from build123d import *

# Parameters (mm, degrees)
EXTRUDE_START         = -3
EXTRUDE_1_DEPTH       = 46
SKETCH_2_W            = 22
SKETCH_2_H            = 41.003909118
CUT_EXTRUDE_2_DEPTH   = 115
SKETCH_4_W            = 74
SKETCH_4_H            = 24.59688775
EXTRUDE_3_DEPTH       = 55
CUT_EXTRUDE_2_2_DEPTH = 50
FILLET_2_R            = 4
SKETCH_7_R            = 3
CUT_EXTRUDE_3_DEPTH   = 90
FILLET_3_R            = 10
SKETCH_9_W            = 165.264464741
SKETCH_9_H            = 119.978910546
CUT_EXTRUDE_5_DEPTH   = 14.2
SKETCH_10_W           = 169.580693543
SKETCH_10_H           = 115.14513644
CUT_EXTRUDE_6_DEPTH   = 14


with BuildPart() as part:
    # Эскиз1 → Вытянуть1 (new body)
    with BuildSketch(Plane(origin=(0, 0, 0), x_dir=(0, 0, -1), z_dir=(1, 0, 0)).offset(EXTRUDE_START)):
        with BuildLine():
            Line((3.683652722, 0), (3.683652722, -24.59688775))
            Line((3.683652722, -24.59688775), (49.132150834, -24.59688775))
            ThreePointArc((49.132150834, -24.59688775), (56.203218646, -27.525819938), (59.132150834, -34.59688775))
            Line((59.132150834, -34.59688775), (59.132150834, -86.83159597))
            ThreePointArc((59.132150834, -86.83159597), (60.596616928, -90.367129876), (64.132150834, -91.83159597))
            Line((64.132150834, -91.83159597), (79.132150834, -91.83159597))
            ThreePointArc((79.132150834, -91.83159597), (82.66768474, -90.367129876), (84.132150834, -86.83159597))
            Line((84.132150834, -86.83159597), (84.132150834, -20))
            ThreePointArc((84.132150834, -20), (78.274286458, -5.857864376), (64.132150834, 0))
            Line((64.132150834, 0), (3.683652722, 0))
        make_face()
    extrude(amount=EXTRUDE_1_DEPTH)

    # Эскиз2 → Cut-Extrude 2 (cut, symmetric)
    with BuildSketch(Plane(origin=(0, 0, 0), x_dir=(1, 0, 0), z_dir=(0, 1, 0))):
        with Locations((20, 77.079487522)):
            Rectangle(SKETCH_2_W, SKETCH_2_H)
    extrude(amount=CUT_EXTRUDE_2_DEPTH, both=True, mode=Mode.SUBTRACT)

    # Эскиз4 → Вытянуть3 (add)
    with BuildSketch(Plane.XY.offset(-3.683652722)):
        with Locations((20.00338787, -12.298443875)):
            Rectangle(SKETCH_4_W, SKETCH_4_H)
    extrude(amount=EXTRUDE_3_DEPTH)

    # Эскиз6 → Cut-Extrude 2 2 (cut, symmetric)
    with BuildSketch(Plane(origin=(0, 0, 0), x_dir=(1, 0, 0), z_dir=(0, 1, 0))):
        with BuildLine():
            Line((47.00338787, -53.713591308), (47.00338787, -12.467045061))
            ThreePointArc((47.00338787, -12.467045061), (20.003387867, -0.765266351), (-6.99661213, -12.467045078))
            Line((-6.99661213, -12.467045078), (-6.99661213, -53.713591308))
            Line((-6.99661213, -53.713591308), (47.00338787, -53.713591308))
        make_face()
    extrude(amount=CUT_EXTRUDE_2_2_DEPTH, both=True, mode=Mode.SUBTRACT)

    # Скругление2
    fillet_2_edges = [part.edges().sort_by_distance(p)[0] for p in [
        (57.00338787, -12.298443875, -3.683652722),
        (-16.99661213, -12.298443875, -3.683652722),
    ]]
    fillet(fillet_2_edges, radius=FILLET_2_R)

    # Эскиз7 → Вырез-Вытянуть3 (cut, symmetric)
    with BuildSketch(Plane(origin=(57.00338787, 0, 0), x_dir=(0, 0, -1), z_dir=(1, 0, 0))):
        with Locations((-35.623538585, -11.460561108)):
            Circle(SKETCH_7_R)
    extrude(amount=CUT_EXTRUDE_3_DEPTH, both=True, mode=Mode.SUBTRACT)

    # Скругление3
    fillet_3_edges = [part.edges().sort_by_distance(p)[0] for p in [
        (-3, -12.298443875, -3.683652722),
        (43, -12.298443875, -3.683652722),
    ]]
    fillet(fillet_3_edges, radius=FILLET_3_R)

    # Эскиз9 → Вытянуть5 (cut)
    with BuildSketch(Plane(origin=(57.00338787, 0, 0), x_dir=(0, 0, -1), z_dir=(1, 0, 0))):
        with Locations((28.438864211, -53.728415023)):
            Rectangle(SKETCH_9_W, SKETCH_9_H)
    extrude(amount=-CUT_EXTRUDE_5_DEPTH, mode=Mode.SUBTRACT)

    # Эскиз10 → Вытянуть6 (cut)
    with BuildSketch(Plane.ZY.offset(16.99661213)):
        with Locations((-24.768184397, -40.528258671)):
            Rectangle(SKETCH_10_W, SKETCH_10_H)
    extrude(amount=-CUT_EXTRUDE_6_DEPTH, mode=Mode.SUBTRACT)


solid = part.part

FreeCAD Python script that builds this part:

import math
import FreeCAD as App
import Part
import Sketcher

V = App.Vector
Q = App.Units.Quantity


def edges_at(feature, points):
    """Names of the edges that pass closest to the given points."""
    edges = feature.Shape.Edges
    near = lambda p: min(range(len(edges)), key=lambda i: edges[i].distToShape(Part.Vertex(*p))[0])
    return sorted({f"Edge{near(p) + 1}" for p in points})


def add_polygon(sketch, points):
    """Adds a closed chain of lines whose ends are joined by coincident constraints."""
    first, n = sketch.GeometryCount, len(points)
    for a, b in zip(points, points[1:] + points[:1]):
        sketch.addGeometry(Part.LineSegment(App.Vector(*a, 0), App.Vector(*b, 0)), False)
    for i in range(n):
        sketch.addConstraint(Sketcher.Constraint("Coincident", first + i, 2, first + (i + 1) % n, 1))

doc = App.newDocument("Part")
body = doc.addObject("PartDesign::Body", "Body")

# Sketch on YZ plane
sketch1 = doc.addObject("Sketcher::SketchObject", "Sketch")
body.addObject(sketch1)
sketch1.AttachmentSupport = (doc.YZ_Plane, [""])
sketch1.MapMode = "FlatFace"
sketch1.AttachmentOffset = App.Placement(V(0, 0, -3), App.Rotation())
sketch1.addGeometry([
    Part.LineSegment(V(0, -4, 0), V(-25, -4, 0)),  # 0
    Part.LineSegment(V(-25, -4, 0), V(-25, -49, 0)),  # 1
    Part.ArcOfCircle(Part.Circle(V(-35, -49, 0), V(0, 0, 1), 10), math.radians(-90), math.radians(0)),  # 2
    Part.LineSegment(V(-35, -59, 0), V(-87, -59, 0)),  # 3
    Part.ArcOfCircle(Part.Circle(V(-87, -64, 0), V(0, 0, 1), 5), math.radians(90), math.radians(180)),  # 4
    Part.LineSegment(V(-92, -64, 0), V(-92, -79, 0)),  # 5
    Part.ArcOfCircle(Part.Circle(V(-87, -79, 0), V(0, 0, 1), 5), math.radians(180), math.radians(270)),  # 6
    Part.LineSegment(V(-87, -84, 0), V(-20, -84, 0)),  # 7
    Part.ArcOfCircle(Part.Circle(V(-20, -64, 0), V(0, 0, 1), 20), math.radians(-90), math.radians(0)),  # 8
    Part.LineSegment(V(0, -64, 0), V(0, -4, 0)),  # 9
], False)
sketch1.addConstraint([
    Sketcher.Constraint("Coincident", 0, 2, 1, 1),
    Sketcher.Constraint("Tangent", 1, 2, 2, 2),
    Sketcher.Constraint("Tangent", 2, 1, 3, 1),
    Sketcher.Constraint("Tangent", 3, 2, 4, 1),
    Sketcher.Constraint("Tangent", 4, 2, 5, 1),
    Sketcher.Constraint("Tangent", 5, 2, 6, 1),
    Sketcher.Constraint("Tangent", 6, 2, 7, 1),
    Sketcher.Constraint("Tangent", 7, 2, 8, 1),
    Sketcher.Constraint("Tangent", 8, 2, 9, 1),
    Sketcher.Constraint("Coincident", 9, 2, 0, 1),
    Sketcher.Constraint("Horizontal", 0),
    Sketcher.Constraint("Vertical", 1),
    Sketcher.Constraint("Horizontal", 3),
    Sketcher.Constraint("Vertical", 5),
    Sketcher.Constraint("Horizontal", 7),
    Sketcher.Constraint("Vertical", 9),
    Sketcher.Constraint("Equal", 4, 6),
    Sketcher.Constraint("PointOnObject", 8, 2, -2),
    Sketcher.Constraint("Horizontal", 4, 3, 8, 3),
    Sketcher.Constraint("Radius", 2, Q("10 mm")),
    Sketcher.Constraint("Radius", 4, Q("5 mm")),
    Sketcher.Constraint("Radius", 8, Q("20 mm")),
    Sketcher.Constraint("DistanceY", 1, 2, 1, 1, Q("45.448498 mm")),
    Sketcher.Constraint("DistanceX", 3, 2, 3, 1, Q("52.234708 mm")),
    Sketcher.Constraint("DistanceX", 0, 2, 0, 1, Q("24.596888 mm")),
    Sketcher.Constraint("DistanceY", 2, 3, -1, 1, Q("49.132151 mm")),
])
pad1 = doc.addObject("PartDesign::Pad", "Pad")
body.addObject(pad1)
pad1.Profile = sketch1
pad1.Length = 46

# Sketch on XZ plane
sketch2 = doc.addObject("Sketcher::SketchObject", "Sketch001")
body.addObject(sketch2)
sketch2.AttachmentSupport = (doc.XZ_Plane, [""])
sketch2.MapMode = "FlatFace"
add_polygon(sketch2, [(9, -98), (9, -57), (31, -57), (31, -98)])  # lines 0-3
sketch2.addConstraint([
    Sketcher.Constraint("Vertical", 0),
    Sketcher.Constraint("Horizontal", 1),
    Sketcher.Constraint("Vertical", 2),
    Sketcher.Constraint("Horizontal", 3),
    Sketcher.Constraint("DistanceX", 1, 1, 1, 2, Q("22 mm")),
    Sketcher.Constraint("DistanceX", -1, 1, 0, 2, Q("9 mm")),
    Sketcher.Constraint("DistanceY", 0, 1, 0, 2, Q("41.003909 mm")),
    Sketcher.Constraint("DistanceY", 0, 2, -1, 1, Q("56.577533 mm")),
])
pocket1 = doc.addObject("PartDesign::Pocket", "Pocket")
body.addObject(pocket1)
pocket1.Profile = sketch2
pocket1.Length = 230
pocket1.Midplane = True

# Sketch on XY plane
sketch3 = doc.addObject("Sketcher::SketchObject", "Sketch002")
body.addObject(sketch3)
sketch3.AttachmentSupport = (doc.XY_Plane, [""])
sketch3.MapMode = "FlatFace"
sketch3.AttachmentOffset = App.Placement(V(0, 0, -3.683653), App.Rotation())
add_polygon(sketch3, [(-17, 0), (-17, -25), (57, -25), (57, 0)])  # lines 0-3
sketch3.addConstraint([
    Sketcher.Constraint("Vertical", 0),
    Sketcher.Constraint("Horizontal", 1),
    Sketcher.Constraint("Vertical", 2),
    Sketcher.Constraint("Horizontal", 3),
    Sketcher.Constraint("PointOnObject", 2, 2, -1),
    Sketcher.Constraint("DistanceX", 1, 1, 1, 2, Q("74 mm")),
    Sketcher.Constraint("DistanceY", 0, 2, 0, 1, Q("24.596888 mm")),
    Sketcher.Constraint("DistanceX", 0, 2, -1, 1, Q("16.996612 mm")),
])
pad2 = doc.addObject("PartDesign::Pad", "Pad001")
body.addObject(pad2)
pad2.Profile = sketch3
pad2.Length = 55

# Sketch on XZ plane
sketch4 = doc.addObject("Sketcher::SketchObject", "Sketch003")
body.addObject(sketch4)
sketch4.AttachmentSupport = (doc.XZ_Plane, [""])
sketch4.MapMode = "FlatFace"
sketch4.addGeometry([
    Part.LineSegment(V(47, 54, 0), V(47, 12, 0)),
    Part.ArcOfCircle(Part.Circle(V(20, 38, 0), V(0, 0, 1), 37), math.radians(-137), math.radians(-43)),
    Part.LineSegment(V(-7, 12, 0), V(-7, 54, 0)),
    Part.LineSegment(V(-7, 54, 0), V(47, 54, 0)),
], False)
sketch4.addConstraint([
    Sketcher.Constraint("Coincident", 0, 2, 1, 2),
    Sketcher.Constraint("Coincident", 1, 1, 2, 1),
    Sketcher.Constraint("Coincident", 2, 2, 3, 1),
    Sketcher.Constraint("Coincident", 3, 2, 0, 1),
    Sketcher.Constraint("Vertical", 0),
    Sketcher.Constraint("Vertical", 2),
    Sketcher.Constraint("Horizontal", 3),
    Sketcher.Constraint("Horizontal", 0, 2, 1, 1),
    Sketcher.Constraint("Radius", 1, Q("37 mm")),
    Sketcher.Constraint("DistanceX", 3, 1, 3, 2, Q("54 mm")),
    Sketcher.Constraint("DistanceY", 0, 2, 0, 1, Q("41.246546 mm")),
    Sketcher.Constraint("DistanceY", -1, 1, 2, 2, Q("53.713591 mm")),
    Sketcher.Constraint("DistanceX", -1, 1, 1, 3, Q("20.003388 mm")),
])
pocket2 = doc.addObject("PartDesign::Pocket", "Pocket001")
body.addObject(pocket2)
pocket2.Profile = sketch4
pocket2.Length = 100
pocket2.Midplane = True
doc.recompute()

fillet = doc.addObject("PartDesign::Fillet", "Fillet")
body.addObject(fillet)
fillet.Base = (pocket2, edges_at(pocket2, [(57.003, -12.298, -3.684), (-16.997, -12.298, -3.684)]))
fillet.Radius = 4

# Sketch on YZ plane
sketch5 = doc.addObject("Sketcher::SketchObject", "Sketch004")
body.addObject(sketch5)
sketch5.AttachmentSupport = (doc.YZ_Plane, [""])
sketch5.MapMode = "FlatFace"
sketch5.AttachmentOffset = App.Placement(V(0, 0, 57.003388), App.Rotation())
sketch5.addGeometry(Part.Circle(V(-11.5, 35.6, 0), V(0, 0, 1), 3), False)
sketch5.addConstraint([
    Sketcher.Constraint("Diameter", 0, Q("6 mm")),
    Sketcher.Constraint("DistanceX", 0, 3, -1, 1, Q("11.460561 mm")),
    Sketcher.Constraint("DistanceY", -1, 1, 0, 3, Q("35.623539 mm")),
])
pocket3 = doc.addObject("PartDesign::Pocket", "Pocket002")
body.addObject(pocket3)
pocket3.Profile = sketch5
pocket3.Length = 180
pocket3.Midplane = True
doc.recompute()

fillet2 = doc.addObject("PartDesign::Fillet", "Fillet001")
body.addObject(fillet2)
fillet2.Base = (pocket3, edges_at(pocket3, [(-3, -12.298, -3.684), (43, -12.298, -3.684)]))
fillet2.Radius = 10

# Sketch on YZ plane
sketch6 = doc.addObject("Sketcher::SketchObject", "Sketch005")
body.addObject(sketch6)
sketch6.AttachmentSupport = (doc.YZ_Plane, [""])
sketch6.MapMode = "FlatFace"
sketch6.AttachmentOffset = App.Placement(V(0, 0, 57.003388), App.Rotation())
add_polygon(sketch6, [(6, 54), (-114, 54), (-114, -111), (6, -111)])  # lines 0-3
sketch6.addConstraint([
    Sketcher.Constraint("Horizontal", 0),
    Sketcher.Constraint("Vertical", 1),
    Sketcher.Constraint("Horizontal", 2),
    Sketcher.Constraint("Vertical", 3),
    Sketcher.Constraint("DistanceX", 0, 2, 0, 1, Q("119.978911 mm")),
    Sketcher.Constraint("DistanceY", 1, 2, 1, 1, Q("165.264465 mm")),
    Sketcher.Constraint("DistanceX", 0, 2, -1, 1, Q("113.71787 mm")),
    Sketcher.Constraint("DistanceY", -1, 1, 0, 2, Q("54.193368 mm")),
])
pocket4 = doc.addObject("PartDesign::Pocket", "Pocket003")
body.addObject(pocket4)
pocket4.Profile = sketch6
pocket4.Length = 14.2

# Sketch on YZ plane
sketch7 = doc.addObject("Sketcher::SketchObject", "Sketch006")
body.addObject(sketch7)
sketch7.AttachmentSupport = (doc.YZ_Plane, [""])
sketch7.MapMode = "FlatFace"
sketch7.AttachmentOffset = App.Placement(V(0, 0, -16.996612), App.Rotation())
add_polygon(sketch7, [(17, -110), (-98, -110), (-98, 60), (17, 60)])  # lines 0-3
sketch7.addConstraint([
    Sketcher.Constraint("Horizontal", 0),
    Sketcher.Constraint("Vertical", 1),
    Sketcher.Constraint("Horizontal", 2),
    Sketcher.Constraint("Vertical", 3),
    Sketcher.Constraint("DistanceX", 0, 2, 0, 1, Q("115.145136 mm")),
    Sketcher.Constraint("DistanceY", 1, 1, 1, 2, Q("169.580694 mm")),
    Sketcher.Constraint("DistanceY", 0, 2, -1, 1, Q("109.558531 mm")),
    Sketcher.Constraint("DistanceX", -1, 1, 2, 2, Q("17.04431 mm")),
])
pocket5 = doc.addObject("PartDesign::Pocket", "Pocket004")
body.addObject(pocket5)
pocket5.Profile = sketch7
pocket5.Length = 14
pocket5.Reversed = True

doc.recompute()
